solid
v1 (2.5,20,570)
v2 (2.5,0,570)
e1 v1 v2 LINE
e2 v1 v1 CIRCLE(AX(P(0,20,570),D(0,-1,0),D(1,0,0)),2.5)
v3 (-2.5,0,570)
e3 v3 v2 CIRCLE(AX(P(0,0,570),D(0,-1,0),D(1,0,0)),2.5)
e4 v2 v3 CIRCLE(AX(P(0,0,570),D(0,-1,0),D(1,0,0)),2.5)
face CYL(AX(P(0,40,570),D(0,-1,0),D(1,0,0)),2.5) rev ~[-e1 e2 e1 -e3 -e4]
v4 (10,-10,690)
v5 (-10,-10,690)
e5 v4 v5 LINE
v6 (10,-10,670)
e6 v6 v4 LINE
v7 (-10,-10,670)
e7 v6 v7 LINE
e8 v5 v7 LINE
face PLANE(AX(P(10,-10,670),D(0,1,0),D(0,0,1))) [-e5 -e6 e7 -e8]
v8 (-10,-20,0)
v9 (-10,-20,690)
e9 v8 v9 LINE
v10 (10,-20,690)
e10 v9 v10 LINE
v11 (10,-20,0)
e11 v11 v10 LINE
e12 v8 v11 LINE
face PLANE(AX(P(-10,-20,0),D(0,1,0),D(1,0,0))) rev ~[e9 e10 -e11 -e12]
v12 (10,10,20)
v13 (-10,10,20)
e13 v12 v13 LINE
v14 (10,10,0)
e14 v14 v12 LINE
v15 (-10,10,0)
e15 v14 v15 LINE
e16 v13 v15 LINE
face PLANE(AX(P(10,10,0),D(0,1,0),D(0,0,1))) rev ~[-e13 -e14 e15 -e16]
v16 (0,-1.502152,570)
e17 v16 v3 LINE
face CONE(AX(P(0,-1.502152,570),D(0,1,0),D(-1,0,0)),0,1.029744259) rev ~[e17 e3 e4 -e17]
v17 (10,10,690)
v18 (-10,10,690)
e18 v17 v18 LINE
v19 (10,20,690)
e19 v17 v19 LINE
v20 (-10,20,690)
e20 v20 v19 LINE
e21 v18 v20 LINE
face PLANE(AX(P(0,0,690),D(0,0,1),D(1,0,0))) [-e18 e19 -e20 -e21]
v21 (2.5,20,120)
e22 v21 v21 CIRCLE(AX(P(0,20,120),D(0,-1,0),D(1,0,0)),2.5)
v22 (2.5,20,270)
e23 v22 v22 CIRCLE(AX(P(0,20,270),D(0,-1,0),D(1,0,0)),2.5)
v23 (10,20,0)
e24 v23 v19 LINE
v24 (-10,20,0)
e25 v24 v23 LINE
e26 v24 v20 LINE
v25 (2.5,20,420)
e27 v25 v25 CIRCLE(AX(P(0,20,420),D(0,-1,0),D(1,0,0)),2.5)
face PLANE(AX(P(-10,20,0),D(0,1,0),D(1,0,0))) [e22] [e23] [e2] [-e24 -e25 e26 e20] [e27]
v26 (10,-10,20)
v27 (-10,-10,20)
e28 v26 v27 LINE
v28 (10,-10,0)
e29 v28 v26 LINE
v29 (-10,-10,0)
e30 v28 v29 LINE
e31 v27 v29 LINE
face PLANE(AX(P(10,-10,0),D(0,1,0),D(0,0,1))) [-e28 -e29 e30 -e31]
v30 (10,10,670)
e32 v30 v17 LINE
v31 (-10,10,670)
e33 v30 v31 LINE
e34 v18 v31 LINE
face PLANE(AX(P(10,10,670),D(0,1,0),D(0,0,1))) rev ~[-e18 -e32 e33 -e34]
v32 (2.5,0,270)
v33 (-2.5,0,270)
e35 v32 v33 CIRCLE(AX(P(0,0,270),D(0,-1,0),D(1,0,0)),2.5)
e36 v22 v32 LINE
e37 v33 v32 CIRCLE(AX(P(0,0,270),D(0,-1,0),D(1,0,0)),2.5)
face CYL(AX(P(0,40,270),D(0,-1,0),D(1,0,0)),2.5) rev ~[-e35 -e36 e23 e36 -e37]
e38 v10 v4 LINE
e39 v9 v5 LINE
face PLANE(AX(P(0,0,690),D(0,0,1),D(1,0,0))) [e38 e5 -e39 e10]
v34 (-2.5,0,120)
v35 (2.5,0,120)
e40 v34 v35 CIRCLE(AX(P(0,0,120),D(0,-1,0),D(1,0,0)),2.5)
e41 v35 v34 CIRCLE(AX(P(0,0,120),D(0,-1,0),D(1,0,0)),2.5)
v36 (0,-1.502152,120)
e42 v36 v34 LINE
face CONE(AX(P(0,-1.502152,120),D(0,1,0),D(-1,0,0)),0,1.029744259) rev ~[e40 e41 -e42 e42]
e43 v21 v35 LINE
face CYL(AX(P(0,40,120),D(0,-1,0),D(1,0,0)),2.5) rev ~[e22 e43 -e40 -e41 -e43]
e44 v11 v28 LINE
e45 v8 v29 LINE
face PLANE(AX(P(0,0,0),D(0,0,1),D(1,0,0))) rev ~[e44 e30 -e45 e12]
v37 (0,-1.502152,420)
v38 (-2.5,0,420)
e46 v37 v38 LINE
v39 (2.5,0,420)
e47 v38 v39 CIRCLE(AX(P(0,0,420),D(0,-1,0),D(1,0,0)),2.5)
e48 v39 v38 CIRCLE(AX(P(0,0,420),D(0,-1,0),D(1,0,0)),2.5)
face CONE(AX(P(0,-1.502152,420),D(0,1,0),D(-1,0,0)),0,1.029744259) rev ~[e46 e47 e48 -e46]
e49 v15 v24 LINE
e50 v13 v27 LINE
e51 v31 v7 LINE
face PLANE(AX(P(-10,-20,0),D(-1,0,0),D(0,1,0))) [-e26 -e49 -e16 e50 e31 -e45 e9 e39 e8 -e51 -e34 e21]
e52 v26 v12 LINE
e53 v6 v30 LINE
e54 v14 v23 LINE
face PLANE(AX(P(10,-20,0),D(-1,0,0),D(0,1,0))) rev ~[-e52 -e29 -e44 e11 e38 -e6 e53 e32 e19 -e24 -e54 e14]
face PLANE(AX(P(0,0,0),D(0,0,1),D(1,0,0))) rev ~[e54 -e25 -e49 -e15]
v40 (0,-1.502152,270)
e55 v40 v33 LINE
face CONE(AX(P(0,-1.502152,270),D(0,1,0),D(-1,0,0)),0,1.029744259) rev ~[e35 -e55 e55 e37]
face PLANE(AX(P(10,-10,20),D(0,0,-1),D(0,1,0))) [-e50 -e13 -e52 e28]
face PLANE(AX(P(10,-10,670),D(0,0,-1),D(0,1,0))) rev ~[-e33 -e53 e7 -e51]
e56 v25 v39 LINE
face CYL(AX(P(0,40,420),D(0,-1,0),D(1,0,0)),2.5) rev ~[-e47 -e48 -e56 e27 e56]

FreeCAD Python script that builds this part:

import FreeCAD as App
import Part
import Sketcher

V = App.Vector

doc = App.newDocument("Part")
body = doc.addObject("PartDesign::Body", "Body")

# Sketch on XY plane
sketch1 = body.newObject("Sketcher::SketchObject", "Sketch")
sketch1.AttachmentSupport = (doc.getObject("XY_Plane"), [""])
sketch1.MapMode = "FlatFace"
sketch1.addGeometry(Part.LineSegment(V(-10, 20, 0), V(-10, -20, 0)), False)
sketch1.addGeometry(Part.LineSegment(V(-10, -20, 0), V(10, -20, 0)), False)
sketch1.addGeometry(Part.LineSegment(V(10, -20, 0), V(10, 20, 0)), False)
sketch1.addGeometry(Part.LineSegment(V(10, 20, 0), V(-10, 20, 0)), False)
sketch1.addConstraint(Sketcher.Constraint("Coincident", 0, 2, 1, 1))
sketch1.addConstraint(Sketcher.Constraint("Coincident", 1, 2, 2, 1))
sketch1.addConstraint(Sketcher.Constraint("Coincident", 2, 2, 3, 1))
sketch1.addConstraint(Sketcher.Constraint("Coincident", 3, 2, 0, 1))
sketch1.addConstraint(Sketcher.Constraint("Vertical", 0))
sketch1.addConstraint(Sketcher.Constraint("Horizontal", 1))
sketch1.addConstraint(Sketcher.Constraint("Vertical", 2))
sketch1.addConstraint(Sketcher.Constraint("Horizontal", 3))
sketch1.addConstraint(Sketcher.Constraint("Symmetric", 0, 2, 2, 2, -1, 1))
sketch1.addConstraint(Sketcher.Constraint("DistanceX", 1, 1, 1, 2, 20.0))
sketch1.addConstraint(Sketcher.Constraint("DistanceY", 0, 2, 0, 1, 40.0))
pad1 = body.newObject("PartDesign::Pad", "Pad")
pad1.Profile = sketch1
pad1.Length = 690

# Sketch on XZ plane
sketch2 = body.newObject("Sketcher::SketchObject", "Sketch001")
sketch2.AttachmentSupport = (doc.getObject("XZ_Plane"), [""])
sketch2.MapMode = "FlatFace"
sketch2.AttachmentOffset = App.Placement(V(0, 0, -20), App.Rotation())
sketch2.addGeometry(Part.Circle(V(0, 570, 0), V(0, 0, 1), 2.5), False)
sketch2.addGeometry(Part.Circle(V(0, 420, 0), V(0, 0, 1), 2.5), False)
sketch2.addGeometry(Part.Circle(V(0, 270, 0), V(0, 0, 1), 2.5), False)
sketch2.addGeometry(Part.Circle(V(0, 120, 0), V(0, 0, 1), 2.5), False)
sketch2.addConstraint(Sketcher.Constraint("Equal", 0, 1))
sketch2.addConstraint(Sketcher.Constraint("Equal", 1, 2))
sketch2.addConstraint(Sketcher.Constraint("Equal", 2, 3))
sketch2.addConstraint(Sketcher.Constraint("PointOnObject", 0, 3, -2))
sketch2.addConstraint(Sketcher.Constraint("PointOnObject", 1, 3, -2))
sketch2.addConstraint(Sketcher.Constraint("PointOnObject", 2, 3, -2))
sketch2.addConstraint(Sketcher.Constraint("PointOnObject", 3, 3, -2))
sketch2.addConstraint(Sketcher.Constraint("Diameter", 0, 5.0))
sketch2.addConstraint(Sketcher.Constraint("DistanceY", -1, 1, 0, 3, 570.0))
sketch2.addConstraint(Sketcher.Constraint("DistanceY", -1, 1, 1, 3, 420.0))
sketch2.addConstraint(Sketcher.Constraint("DistanceY", -1, 1, 2, 3, 270.0))
sketch2.addConstraint(Sketcher.Constraint("DistanceY", -1, 1, 3, 3, 120.0))
doc.recompute()
hole = body.newObject("PartDesign::Hole", "Hole")
hole.Profile = sketch2
hole.ThreadType = "None"
hole.Diameter = 5
hole.DepthType = "Dimension"
hole.Depth = 20
hole.DrillPoint = "Angled"
hole.DrillPointAngle = 118
hole.Reversed = True

# Sketch on YZ plane
sketch3 = body.newObject("Sketcher::SketchObject", "Sketch002")
sketch3.AttachmentSupport = (doc.getObject("YZ_Plane"), [""])
sketch3.MapMode = "FlatFace"
sketch3.AttachmentOffset = App.Placement(V(0, 0, 10), App.Rotation())
sketch3.addGeometry(Part.LineSegment(V(-10, 690, 0), V(-10, 670, 0)), False)
sketch3.addGeometry(Part.LineSegment(V(-10, 670, 0), V(10, 670, 0)), False)
sketch3.addGeometry(Part.LineSegment(V(10, 670, 0), V(10, 690, 0)), False)
sketch3.addGeometry(Part.LineSegment(V(10, 690, 0), V(-10, 690, 0)), False)
sketch3.addConstraint(Sketcher.Constraint("Coincident", 0, 2, 1, 1))
sketch3.addConstraint(Sketcher.Constraint("Coincident", 1, 2, 2, 1))
sketch3.addConstraint(Sketcher.Constraint("Coincident", 2, 2, 3, 1))
sketch3.addConstraint(Sketcher.Constraint("Coincident", 3, 2, 0, 1))
sketch3.addConstraint(Sketcher.Constraint("Vertical", 0))
sketch3.addConstraint(Sketcher.Constraint("Horizontal", 1))
sketch3.addConstraint(Sketcher.Constraint("Vertical", 2))
sketch3.addConstraint(Sketcher.Constraint("Horizontal", 3))
sketch3.addConstraint(Sketcher.Constraint("Equal", 3, 0))
sketch3.addConstraint(Sketcher.Constraint("DistanceX", 1, 1, 1, 2, 20.0))
sketch3.addConstraint(Sketcher.Constraint("DistanceX", 0, 2, -1, 1, 10.0))
sketch3.addConstraint(Sketcher.Constraint("DistanceY", -1, 1, 0, 2, 670.0))
pocket1 = body.newObject("PartDesign::Pocket", "Pocket")
pocket1.Profile = sketch3
pocket1.Length = 66.8

# Sketch on YZ plane
sketch4 = body.newObject("Sketcher::SketchObject", "Sketch003")
sketch4.AttachmentSupport = (doc.getObject("YZ_Plane"), [""])
sketch4.MapMode = "FlatFace"
sketch4.AttachmentOffset = App.Placement(V(0, 0, 10), App.Rotation())
sketch4.addGeometry(Part.LineSegment(V(-10, 20, 0), V(-10, 0, 0)), False)
sketch4.addGeometry(Part.LineSegment(V(-10, 0, 0), V(10, 0, 0)), False)
sketch4.addGeometry(Part.LineSegment(V(10, 0, 0), V(10, 20, 0)), False)
sketch4.addGeometry(Part.LineSegment(V(10, 20, 0), V(-10, 20, 0)), False)
sketch4.addConstraint(Sketcher.Constraint("Coincident", 0, 2, 1, 1))
sketch4.addConstraint(Sketcher.Constraint("Coincident", 1, 2, 2, 1))
sketch4.addConstraint(Sketcher.Constraint("Coincident", 2, 2, 3, 1))
sketch4.addConstraint(Sketcher.Constraint("Coincident", 3, 2, 0, 1))
sketch4.addConstraint(Sketcher.Constraint("Vertical", 0))
sketch4.addConstraint(Sketcher.Constraint("Horizontal", 1))
sketch4.addConstraint(Sketcher.Constraint("Vertical", 2))
sketch4.addConstraint(Sketcher.Constraint("Horizontal", 3))
sketch4.addConstraint(Sketcher.Constraint("Symmetric", 0, 2, 1, 2, -1, 1))
sketch4.addConstraint(Sketcher.Constraint("Equal", 3, 0))
sketch4.addConstraint(Sketcher.Constraint("DistanceX", 1, 1, 1, 2, 20.0))
pocket2 = body.newObject("PartDesign::Pocket", "Pocket001")
pocket2.Profile = sketch4
pocket2.Length = 25
body2 = doc.addObject("PartDesign::Body", "Body001")
doc.recompute()

body2.BaseFeature = body
doc.recompute()
body.Visibility = False

doc.recompute()
